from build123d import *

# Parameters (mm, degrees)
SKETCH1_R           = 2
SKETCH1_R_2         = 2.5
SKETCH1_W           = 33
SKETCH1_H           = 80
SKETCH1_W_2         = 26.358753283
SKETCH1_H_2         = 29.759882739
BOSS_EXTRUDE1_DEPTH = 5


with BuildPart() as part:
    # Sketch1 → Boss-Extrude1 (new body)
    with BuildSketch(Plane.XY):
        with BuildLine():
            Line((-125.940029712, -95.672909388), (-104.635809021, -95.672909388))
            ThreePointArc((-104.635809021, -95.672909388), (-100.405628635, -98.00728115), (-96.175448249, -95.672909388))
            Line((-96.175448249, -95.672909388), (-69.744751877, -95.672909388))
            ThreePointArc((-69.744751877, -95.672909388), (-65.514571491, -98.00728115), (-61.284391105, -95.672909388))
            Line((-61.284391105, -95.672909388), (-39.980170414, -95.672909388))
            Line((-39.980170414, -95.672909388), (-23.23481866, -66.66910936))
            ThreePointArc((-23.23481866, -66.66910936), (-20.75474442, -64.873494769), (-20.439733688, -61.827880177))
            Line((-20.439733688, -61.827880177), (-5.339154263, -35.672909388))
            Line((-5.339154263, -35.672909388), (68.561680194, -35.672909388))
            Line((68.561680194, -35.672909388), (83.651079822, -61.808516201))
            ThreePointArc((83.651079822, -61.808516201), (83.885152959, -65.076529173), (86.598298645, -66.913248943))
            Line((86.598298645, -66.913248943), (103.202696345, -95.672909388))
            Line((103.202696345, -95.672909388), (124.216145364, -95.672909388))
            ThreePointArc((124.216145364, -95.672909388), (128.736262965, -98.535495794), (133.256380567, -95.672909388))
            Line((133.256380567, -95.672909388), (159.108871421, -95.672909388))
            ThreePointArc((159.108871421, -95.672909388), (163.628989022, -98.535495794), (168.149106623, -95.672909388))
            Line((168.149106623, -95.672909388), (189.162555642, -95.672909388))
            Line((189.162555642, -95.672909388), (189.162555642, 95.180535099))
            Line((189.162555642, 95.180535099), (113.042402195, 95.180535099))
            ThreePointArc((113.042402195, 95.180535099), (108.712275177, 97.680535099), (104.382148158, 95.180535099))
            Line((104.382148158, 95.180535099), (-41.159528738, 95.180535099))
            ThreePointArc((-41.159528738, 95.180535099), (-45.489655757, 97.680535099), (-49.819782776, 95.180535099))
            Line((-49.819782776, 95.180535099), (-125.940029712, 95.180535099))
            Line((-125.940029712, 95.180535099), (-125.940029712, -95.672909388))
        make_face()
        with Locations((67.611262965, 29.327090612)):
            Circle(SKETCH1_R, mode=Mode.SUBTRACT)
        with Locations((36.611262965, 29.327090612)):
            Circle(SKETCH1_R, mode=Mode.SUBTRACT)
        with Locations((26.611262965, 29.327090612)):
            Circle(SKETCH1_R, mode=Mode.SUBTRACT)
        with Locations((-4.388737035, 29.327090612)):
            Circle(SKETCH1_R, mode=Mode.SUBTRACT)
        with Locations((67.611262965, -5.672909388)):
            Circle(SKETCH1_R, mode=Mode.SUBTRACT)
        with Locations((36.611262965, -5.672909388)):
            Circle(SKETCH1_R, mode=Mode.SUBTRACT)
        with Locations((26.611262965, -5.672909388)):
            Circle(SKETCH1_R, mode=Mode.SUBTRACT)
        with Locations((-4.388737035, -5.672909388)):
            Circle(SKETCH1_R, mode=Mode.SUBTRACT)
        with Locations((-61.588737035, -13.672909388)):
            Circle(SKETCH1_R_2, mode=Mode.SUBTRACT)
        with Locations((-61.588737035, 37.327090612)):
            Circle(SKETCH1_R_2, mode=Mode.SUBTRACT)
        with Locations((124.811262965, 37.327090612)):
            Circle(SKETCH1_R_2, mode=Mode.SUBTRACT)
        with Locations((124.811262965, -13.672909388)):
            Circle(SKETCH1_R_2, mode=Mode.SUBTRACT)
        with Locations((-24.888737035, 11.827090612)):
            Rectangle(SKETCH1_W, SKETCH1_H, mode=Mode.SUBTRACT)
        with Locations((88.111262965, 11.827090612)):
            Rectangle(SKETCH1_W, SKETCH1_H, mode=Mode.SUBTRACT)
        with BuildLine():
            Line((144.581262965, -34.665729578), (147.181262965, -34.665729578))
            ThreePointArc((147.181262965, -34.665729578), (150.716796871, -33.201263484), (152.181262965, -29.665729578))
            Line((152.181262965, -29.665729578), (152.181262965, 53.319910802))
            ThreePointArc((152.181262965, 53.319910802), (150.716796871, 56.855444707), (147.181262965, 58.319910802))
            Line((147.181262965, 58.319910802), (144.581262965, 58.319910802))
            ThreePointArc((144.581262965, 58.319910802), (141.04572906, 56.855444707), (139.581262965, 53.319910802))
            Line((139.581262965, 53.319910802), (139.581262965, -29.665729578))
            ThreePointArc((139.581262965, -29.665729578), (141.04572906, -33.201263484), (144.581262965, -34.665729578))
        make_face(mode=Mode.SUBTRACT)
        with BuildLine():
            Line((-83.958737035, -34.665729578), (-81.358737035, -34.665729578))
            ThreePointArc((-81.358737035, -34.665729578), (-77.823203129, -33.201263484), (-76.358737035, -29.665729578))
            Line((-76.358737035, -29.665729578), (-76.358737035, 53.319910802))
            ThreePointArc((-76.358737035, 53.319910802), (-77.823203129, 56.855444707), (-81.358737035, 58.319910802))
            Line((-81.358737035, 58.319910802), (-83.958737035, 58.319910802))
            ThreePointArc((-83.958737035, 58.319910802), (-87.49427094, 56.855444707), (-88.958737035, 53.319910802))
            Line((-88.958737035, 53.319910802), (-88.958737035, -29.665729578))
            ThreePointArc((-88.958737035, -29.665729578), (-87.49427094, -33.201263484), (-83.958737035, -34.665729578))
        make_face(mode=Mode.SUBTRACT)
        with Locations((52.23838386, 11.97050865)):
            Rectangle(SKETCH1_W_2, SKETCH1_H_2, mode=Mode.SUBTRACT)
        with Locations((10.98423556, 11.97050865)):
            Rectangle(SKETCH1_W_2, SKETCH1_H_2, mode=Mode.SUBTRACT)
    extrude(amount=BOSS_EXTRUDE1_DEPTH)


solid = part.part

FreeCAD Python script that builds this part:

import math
import FreeCAD as App
import Part
import Sketcher
from FreeCAD import Vector
Q = App.Units.Quantity

doc = App.newDocument("Part")
body = doc.addObject("PartDesign::Body", "Body")

# Sketch on XY plane
sketch1 = body.newObject("Sketcher::SketchObject", "Sketch")
sketch1.AttachmentSupport = (doc.getObject("XY_Plane"), [""])
sketch1.MapMode = "FlatFace"
sketch1.addGeometry([
    Part.LineSegment(Vector(-125.9, -95.7, 0), Vector(-104.6, -95.7, 0)),  # 0
    Part.ArcOfCircle(Part.Circle(Vector(-100.4, -93, 0), Vector(0, 0, 1), 5), math.radians(-148), math.radians(-32)),  # 1
    Part.LineSegment(Vector(-96.2, -95.7, 0), Vector(-69.7, -95.7, 0)),  # 2
    Part.ArcOfCircle(Part.Circle(Vector(-65.5, -93, 0), Vector(0, 0, 1), 5), math.radians(-148), math.radians(-32)),  # 3
    Part.LineSegment(Vector(-61.3, -95.7, 0), Vector(-40, -95.7, 0)),  # 4
    Part.LineSegment(Vector(-40, -95.7, 0), Vector(-23.2, -66.7, 0)),  # 5
    Part.ArcOfCircle(Part.Circle(Vector(-24, -63, 0), Vector(0, 0, 1), 3.8), math.radians(-78), math.radians(18)),  # 6
    Part.LineSegment(Vector(-20.4, -61.8, 0), Vector(-5.3, -35.7, 0)),  # 7
    Part.LineSegment(Vector(-5.3, -35.7, 0), Vector(68.6, -35.7, 0)),  # 8
    Part.LineSegment(Vector(68.6, -35.7, 0), Vector(83.7, -61.8, 0)),  # 9
    Part.ArcOfCircle(Part.Circle(Vector(87.1, -63.2, 0), Vector(0, 0, 1), 3.8), math.radians(158), math.radians(262)),  # 10
    Part.LineSegment(Vector(86.6, -66.9, 0), Vector(103.2, -95.7, 0)),  # 11
    Part.LineSegment(Vector(103.2, -95.7, 0), Vector(124.2, -95.7, 0)),  # 12
    Part.ArcOfCircle(Part.Circle(Vector(128.7, -93.5, 0), Vector(0, 0, 1), 5), math.radians(-155), math.radians(-25)),  # 13
    Part.LineSegment(Vector(133.3, -95.7, 0), Vector(159.1, -95.7, 0)),  # 14
    Part.ArcOfCircle(Part.Circle(Vector(163.6, -93.5, 0), Vector(0, 0, 1), 5), math.radians(-155), math.radians(-25)),  # 15
    Part.LineSegment(Vector(168.1, -95.7, 0), Vector(189.2, -95.7, 0)),  # 16
    Part.LineSegment(Vector(189.2, -95.7, 0), Vector(189.2, 95.2, 0)),  # 17
    Part.LineSegment(Vector(189.2, 95.2, 0), Vector(113, 95.2, 0)),  # 18
    Part.ArcOfCircle(Part.Circle(Vector(108.7, 92.7, 0), Vector(0, 0, 1), 5), math.radians(30), math.radians(150)),  # 19
    Part.LineSegment(Vector(104.4, 95.2, 0), Vector(-41.2, 95.2, 0)),  # 20
    Part.ArcOfCircle(Part.Circle(Vector(-45.5, 92.7, 0), Vector(0, 0, 1), 5), math.radians(30), math.radians(150)),  # 21
    Part.LineSegment(Vector(-49.8, 95.2, 0), Vector(-125.9, 95.2, 0)),  # 22
    Part.LineSegment(Vector(-125.9, 95.2, 0), Vector(-125.9, -95.7, 0)),  # 23
    Part.Circle(Vector(-61.6, -13.7, 0), Vector(0, 0, 1), 2.5),  # 24
    Part.Circle(Vector(-4.4, -5.7, 0), Vector(0, 0, 1), 2),  # 25
    Part.Circle(Vector(26.6, -5.7, 0), Vector(0, 0, 1), 2),  # 26
    Part.Circle(Vector(124.8, -13.7, 0), Vector(0, 0, 1), 2.5),  # 27
    Part.Circle(Vector(36.6, -5.7, 0), Vector(0, 0, 1), 2),  # 28
    Part.Circle(Vector(67.6, -5.7, 0), Vector(0, 0, 1), 2),  # 29
    Part.LineSegment(Vector(-81.4, -34.7, 0), Vector(-84, -34.7, 0)),  # 30
    Part.ArcOfCircle(Part.Circle(Vector(-84, -29.7, 0), Vector(0, 0, 1), 5), math.radians(-180), math.radians(-90)),  # 31
    Part.LineSegment(Vector(-89, -29.7, 0), Vector(-89, 53.3, 0)),  # 32
    Part.ArcOfCircle(Part.Circle(Vector(-84, 53.3, 0), Vector(0, 0, 1), 5), math.radians(90), math.radians(180)),  # 33
    Part.LineSegment(Vector(-84, 58.3, 0), Vector(-81.4, 58.3, 0)),  # 34
    Part.ArcOfCircle(Part.Circle(Vector(-81.4, 53.3, 0), Vector(0, 0, 1), 5), math.radians(0), math.radians(90)),  # 35
    Part.LineSegment(Vector(-76.4, 53.3, 0), Vector(-76.4, -29.7, 0)),  # 36
    Part.ArcOfCircle(Part.Circle(Vector(-81.4, -29.7, 0), Vector(0, 0, 1), 5), math.radians(-90), math.radians(0)),  # 37
    Part.LineSegment(Vector(-8.4, -28.2, 0), Vector(-41.4, -28.2, 0)),  # 38
    Part.LineSegment(Vector(-41.4, -28.2, 0), Vector(-41.4, 51.8, 0)),  # 39
    Part.LineSegment(Vector(-41.4, 51.8, 0), Vector(-8.4, 51.8, 0)),  # 40
    Part.LineSegment(Vector(-8.4, 51.8, 0), Vector(-8.4, -28.2, 0)),  # 41
    Part.LineSegment(Vector(24.2, -2.9, 0), Vector(-2.2, -2.9, 0)),  # 42
    Part.LineSegment(Vector(-2.2, -2.9, 0), Vector(-2.2, 26.9, 0)),  # 43
    Part.LineSegment(Vector(-2.2, 26.9, 0), Vector(24.2, 26.9, 0)),  # 44
    Part.LineSegment(Vector(24.2, 26.9, 0), Vector(24.2, -2.9, 0)),  # 45
    Part.Circle(Vector(-4.4, 29.3, 0), Vector(0, 0, 1), 2),  # 46
    Part.Circle(Vector(26.6, 29.3, 0), Vector(0, 0, 1), 2),  # 47
    Part.Circle(Vector(-61.6, 37.3, 0), Vector(0, 0, 1), 2.5),  # 48
    Part.LineSegment(Vector(65.4, -2.9, 0), Vector(39.1, -2.9, 0)),  # 49
    Part.LineSegment(Vector(39.1, -2.9, 0), Vector(39.1, 26.9, 0)),  # 50
    Part.LineSegment(Vector(39.1, 26.9, 0), Vector(65.4, 26.9, 0)),  # 51
    Part.LineSegment(Vector(65.4, 26.9, 0), Vector(65.4, -2.9, 0)),  # 52
    Part.LineSegment(Vector(104.6, -28.2, 0), Vector(71.6, -28.2, 0)),  # 53
    Part.LineSegment(Vector(71.6, -28.2, 0), Vector(71.6, 51.8, 0)),  # 54
    Part.LineSegment(Vector(71.6, 51.8, 0), Vector(104.6, 51.8, 0)),  # 55
    Part.LineSegment(Vector(104.6, 51.8, 0), Vector(104.6, -28.2, 0)),  # 56
    Part.Circle(Vector(36.6, 29.3, 0), Vector(0, 0, 1), 2),  # 57
    Part.Circle(Vector(67.6, 29.3, 0), Vector(0, 0, 1), 2),  # 58
    Part.LineSegment(Vector(147.2, -34.7, 0), Vector(144.6, -34.7, 0)),  # 59
    Part.ArcOfCircle(Part.Circle(Vector(144.6, -29.7, 0), Vector(0, 0, 1), 5), math.radians(-180), math.radians(-90)),  # 60
    Part.LineSegment(Vector(139.6, -29.7, 0), Vector(139.6, 53.3, 0)),  # 61
    Part.ArcOfCircle(Part.Circle(Vector(144.6, 53.3, 0), Vector(0, 0, 1), 5), math.radians(90), math.radians(180)),  # 62
    Part.LineSegment(Vector(144.6, 58.3, 0), Vector(147.2, 58.3, 0)),  # 63
    Part.ArcOfCircle(Part.Circle(Vector(147.2, 53.3, 0), Vector(0, 0, 1), 5), math.radians(0), math.radians(90)),  # 64
    Part.LineSegment(Vector(152.2, 53.3, 0), Vector(152.2, -29.7, 0)),  # 65
    Part.ArcOfCircle(Part.Circle(Vector(147.2, -29.7, 0), Vector(0, 0, 1), 5), math.radians(-90), math.radians(0)),  # 66
    Part.Circle(Vector(124.8, 37.3, 0), Vector(0, 0, 1), 2.5),  # 67
], False)
sketch1.addConstraint([
    Sketcher.Constraint("Coincident", 0, 2, 1, 1),
    Sketcher.Constraint("Coincident", 1, 2, 2, 1),
    Sketcher.Constraint("Coincident", 2, 2, 3, 1),
    Sketcher.Constraint("Coincident", 3, 2, 4, 1),
    Sketcher.Constraint("Coincident", 4, 2, 5, 1),
    Sketcher.Constraint("Coincident", 5, 2, 6, 1),
    Sketcher.Constraint("Coincident", 6, 2, 7, 1),
    Sketcher.Constraint("Coincident", 7, 2, 8, 1),
    Sketcher.Constraint("Coincident", 8, 2, 9, 1),
    Sketcher.Constraint("Coincident", 9, 2, 10, 1),
    Sketcher.Constraint("Coincident", 10, 2, 11, 1),
    Sketcher.Constraint("Coincident", 11, 2, 12, 1),
    Sketcher.Constraint("Coincident", 12, 2, 13, 1),
    Sketcher.Constraint("Coincident", 13, 2, 14, 1),
    Sketcher.Constraint("Coincident", 14, 2, 15, 1),
    Sketcher.Constraint("Coincident", 15, 2, 16, 1),
    Sketcher.Constraint("Coincident", 16, 2, 17, 1),
    Sketcher.Constraint("Coincident", 17, 2, 18, 1),
    Sketcher.Constraint("Coincident", 18, 2, 19, 1),
    Sketcher.Constraint("Coincident", 19, 2, 20, 1),
    Sketcher.Constraint("Coincident", 20, 2, 21, 1),
    Sketcher.Constraint("Coincident", 21, 2, 22, 1),
    Sketcher.Constraint("Coincident", 22, 2, 23, 1),
    Sketcher.Constraint("Coincident", 23, 2, 0, 1),
    Sketcher.Constraint("Tangent", 30, 2, 31, 2),
    Sketcher.Constraint("Tangent", 31, 1, 32, 1),
    Sketcher.Constraint("Tangent", 32, 2, 33, 2),
    Sketcher.Constraint("Tangent", 33, 1, 34, 1),
    Sketcher.Constraint("Tangent", 34, 2, 35, 2),
    Sketcher.Constraint("Tangent", 35, 1, 36, 1),
    Sketcher.Constraint("Tangent", 36, 2, 37, 2),
    Sketcher.Constraint("Tangent", 37, 1, 30, 1),
    Sketcher.Constraint("Coincident", 38, 2, 39, 1),
    Sketcher.Constraint("Coincident", 39, 2, 40, 1),
    Sketcher.Constraint("Coincident", 40, 2, 41, 1),
    Sketcher.Constraint("Coincident", 41, 2, 38, 1),
    Sketcher.Constraint("Coincident", 42, 2, 43, 1),
    Sketcher.Constraint("Coincident", 43, 2, 44, 1),
    Sketcher.Constraint("Coincident", 44, 2, 45, 1),
    Sketcher.Constraint("Coincident", 45, 2, 42, 1),
    Sketcher.Constraint("Coincident", 49, 2, 50, 1),
    Sketcher.Constraint("Coincident", 50, 2, 51, 1),
    Sketcher.Constraint("Coincident", 51, 2, 52, 1),
    Sketcher.Constraint("Coincident", 52, 2, 49, 1),
    Sketcher.Constraint("Coincident", 53, 2, 54, 1),
    Sketcher.Constraint("Coincident", 54, 2, 55, 1),
    Sketcher.Constraint("Coincident", 55, 2, 56, 1),
    Sketcher.Constraint("Coincident", 56, 2, 53, 1),
    Sketcher.Constraint("Tangent", 59, 2, 60, 2),
    Sketcher.Constraint("Tangent", 60, 1, 61, 1),
    Sketcher.Constraint("Tangent", 61, 2, 62, 2),
    Sketcher.Constraint("Tangent", 62, 1, 63, 1),
    Sketcher.Constraint("Tangent", 63, 2, 64, 2),
    Sketcher.Constraint("Tangent", 64, 1, 65, 1),
    Sketcher.Constraint("Tangent", 65, 2, 66, 2),
    Sketcher.Constraint("Tangent", 66, 1, 59, 1),
    Sketcher.Constraint("Horizontal", 0),
    Sketcher.Constraint("Horizontal", 2),
    Sketcher.Constraint("Horizontal", 4),
    Sketcher.Constraint("Horizontal", 8),
    Sketcher.Constraint("Horizontal", 12),
    Sketcher.Constraint("Horizontal", 14),
    Sketcher.Constraint("Horizontal", 16),
    Sketcher.Constraint("Vertical", 17),
    Sketcher.Constraint("Horizontal", 18),
    Sketcher.Constraint("Horizontal", 20),
    Sketcher.Constraint("Horizontal", 22),
    Sketcher.Constraint("Vertical", 23),
    Sketcher.Constraint("Horizontal", 30),
    Sketcher.Constraint("Vertical", 32),
    Sketcher.Constraint("Horizontal", 34),
    Sketcher.Constraint("Vertical", 36),
    Sketcher.Constraint("Horizontal", 38),
    Sketcher.Constraint("Vertical", 39),
    Sketcher.Constraint("Horizontal", 40),
    Sketcher.Constraint("Vertical", 41),
    Sketcher.Constraint("Horizontal", 42),
    Sketcher.Constraint("Vertical", 43),
    Sketcher.Constraint("Horizontal", 44),
    Sketcher.Constraint("Vertical", 45),
    Sketcher.Constraint("Horizontal", 49),
    Sketcher.Constraint("Vertical", 50),
    Sketcher.Constraint("Horizontal", 51),
    Sketcher.Constraint("Vertical", 52),
    Sketcher.Constraint("Horizontal", 53),
    Sketcher.Constraint("Vertical", 54),
    Sketcher.Constraint("Horizontal", 55),
    Sketcher.Constraint("Vertical", 56),
    Sketcher.Constraint("Horizontal", 59),
    Sketcher.Constraint("Vertical", 61),
    Sketcher.Constraint("Horizontal", 63),
    Sketcher.Constraint("Vertical", 65),
    Sketcher.Constraint("Equal", 1, 3),
    Sketcher.Constraint("Equal", 6, 10),
    Sketcher.Constraint("Equal", 3, 13),
    Sketcher.Constraint("Equal", 13, 15),
    Sketcher.Constraint("Equal", 15, 19),
    Sketcher.Constraint("Equal", 19, 21),
    Sketcher.Constraint("Equal", 25, 26),
    Sketcher.Constraint("Equal", 24, 27),
    Sketcher.Constraint("Equal", 26, 28),
    Sketcher.Constraint("Equal", 28, 29),
    Sketcher.Constraint("Equal", 21, 31),
    Sketcher.Constraint("Equal", 31, 33),
    Sketcher.Constraint("Equal", 33, 35),
    Sketcher.Constraint("Equal", 35, 37),
    Sketcher.Constraint("Equal", 29, 46),
    Sketcher.Constraint("Equal", 46, 47),
    Sketcher.Constraint("Equal", 27, 48),
    Sketcher.Constraint("Equal", 47, 57),
    Sketcher.Constraint("Equal", 57, 58),
    Sketcher.Constraint("Equal", 37, 60),
    Sketcher.Constraint("Equal", 60, 62),
    Sketcher.Constraint("Equal", 62, 64),
    Sketcher.Constraint("Equal", 64, 66),
    Sketcher.Constraint("Equal", 48, 67),
    Sketcher.Constraint("Parallel", 5, 7),
    Sketcher.Constraint("Parallel", 9, 11),
    Sketcher.Constraint("Horizontal", 1, 3, 3, 3),
    Sketcher.Constraint("Horizontal", 13, 3, 15, 3),
    Sketcher.Constraint("Horizontal", 19, 3, 21, 3),
    Sketcher.Constraint("Horizontal", 25, 3, 26, 3),
    Sketcher.Constraint("Horizontal", 24, 3, 27, 3),
    Sketcher.Constraint("Horizontal", 26, 3, 28, 3),
    Sketcher.Constraint("Horizontal", 28, 3, 29, 3),
    Sketcher.Constraint("Horizontal", 46, 3, 47, 3),
    Sketcher.Constraint("Horizontal", 47, 3, 57, 3),
    Sketcher.Constraint("Horizontal", 57, 3, 58, 3),
    Sketcher.Constraint("Horizontal", 37, 3, 60, 3),
    Sketcher.Constraint("Horizontal", 35, 3, 62, 3),
    Sketcher.Constraint("Horizontal", 48, 3, 67, 3),
    Sketcher.Constraint("Horizontal", 0, 2, 1, 2),
    Sketcher.Constraint("Horizontal", 2, 2, 3, 2),
    Sketcher.Constraint("Horizontal", 4, 2, 11, 2),
    Sketcher.Constraint("Horizontal", 12, 2, 13, 2),
    Sketcher.Constraint("Horizontal", 14, 2, 15, 2),
    Sketcher.Constraint("Horizontal", 18, 2, 19, 2),
    Sketcher.Constraint("Horizontal", 20, 2, 21, 2),
    Sketcher.Constraint("Horizontal", 45, 2, 49, 2),
    Sketcher.Constraint("Horizontal", 44, 2, 50, 2),
    Sketcher.Constraint("Horizontal", 41, 2, 53, 2),
    Sketcher.Constraint("Horizontal", 40, 2, 54, 2),
    Sketcher.Constraint("Vertical", 25, 3, 46, 3),
    Sketcher.Constraint("Vertical", 26, 3, 47, 3),
    Sketcher.Constraint("Vertical", 24, 3, 48, 3),
    Sketcher.Constraint("Vertical", 28, 3, 57, 3),
    Sketcher.Constraint("Vertical", 29, 3, 58, 3),
    Sketcher.Constraint("Vertical", 27, 3, 67, 3),
    Sketcher.Constraint("Equal", 0, 4),
    Sketcher.Constraint("Equal", 12, 16),
    Sketcher.Constraint("Equal", 44, 49),
    Sketcher.Constraint("Equal", 40, 53),
    Sketcher.Constraint("Equal", 34, 59),
    Sketcher.Constraint("Diameter", 24, 5.0),
    Sketcher.Constraint("Diameter", 25, 4.0),
    Sketcher.Constraint("Radius", 1, 5.0),
    Sketcher.Constraint("DistanceX", 38, 2, 38, 1, 33.0),
    Sketcher.Constraint("DistanceY", 39, 1, 39, 2, 80.0),
    Sketcher.Constraint("Angle", 5, Q("60 deg")),
    Sketcher.Constraint("Angle", 9, Q("-60 deg")),
    Sketcher.Constraint("Radius", 6, 3.75),
    Sketcher.Constraint("DistanceX", 30, 2, 30, 1, 2.6),
    Sketcher.Constraint("Distance", 9, 30.178799),
    Sketcher.Constraint("DistanceX", 0, 1, 0, 2, 21.304221),
    Sketcher.Constraint("DistanceX", 12, 1, 12, 2, 21.013449),
    Sketcher.Constraint("DistanceX", 14, 1, 14, 2, 25.852491),
    Sketcher.Constraint("DistanceY", 32, 1, 32, 2, 82.98564),
    Sketcher.Constraint("DistanceX", -1, 1, 10, 2, 86.598299),
    Sketcher.Constraint("Distance", 7, 30.201159),
    Sketcher.Constraint("DistanceX", 2, 1, 2, 2, 26.430696),
    Sketcher.Constraint("DistanceX", 8, 1, 8, 2, 73.900834),
    Sketcher.Constraint("DistanceX", 18, 2, 18, 1, 76.120153),
    Sketcher.Constraint("DistanceX", 20, 2, 20, 1, 145.541677),
    Sketcher.Constraint("DistanceX", 22, 2, 22, 1, 76.120247),
    Sketcher.Constraint("DistanceX", 42, 2, 42, 1, 26.358753),
    Sketcher.Constraint("DistanceY", 17, 1, 17, 2, 190.853444),
    Sketcher.Constraint("DistanceY", 43, 1, 43, 2, 29.759883),
    Sketcher.Constraint("DistanceX", 1, 3, -1, 1, 100.405629),
    Sketcher.Constraint("DistanceY", 1, 3, -1, 1, 93.007281),
    Sketcher.Constraint("DistanceX", 3, 3, -1, 1, 65.514571),
    Sketcher.Constraint("DistanceX", 6, 3, -1, 1, 24.00234),
    Sketcher.Constraint("DistanceX", -1, 1, 10, 3, 87.132748),
    Sketcher.Constraint("DistanceY", 10, 3, -1, 1, 63.201529),
    Sketcher.Constraint("DistanceX", -1, 1, 15, 3, 163.628989),
    Sketcher.Constraint("DistanceY", 24, 3, -1, 1, 13.672909),
    Sketcher.Constraint("DistanceY", 25, 3, -1, 1, 5.672909),
    Sketcher.Constraint("DistanceY", 31, 3, -1, 1, 29.66573),
    Sketcher.Constraint("DistanceY", -1, 1, 46, 3, 29.327091),
    Sketcher.Constraint("DistanceY", -1, 1, 48, 3, 37.327091),
    Sketcher.Constraint("DistanceX", 5, 2, -1, 1, 23.234819),
    Sketcher.Constraint("DistanceY", 38, 2, -1, 1, 28.172909),
    Sketcher.Constraint("DistanceX", 42, 2, -1, 1, 2.195141),
    Sketcher.Constraint("DistanceY", -1, 1, 43, 2, 26.85045),
    Sketcher.Constraint("DistanceX", -1, 1, 51, 2, 65.417761),
    Sketcher.Constraint("DistanceX", 24, 3, -1, 1, 61.588737),
    Sketcher.Constraint("DistanceX", 25, 3, -1, 1, 4.388737),
    Sketcher.Constraint("DistanceX", -1, 1, 26, 3, 26.611263),
    Sketcher.Constraint("DistanceX", -1, 1, 27, 3, 124.811263),
    Sketcher.Constraint("DistanceX", -1, 1, 28, 3, 36.611263),
    Sketcher.Constraint("DistanceX", -1, 1, 29, 3, 67.611263),
    Sketcher.Constraint("DistanceX", 31, 3, -1, 1, 83.958737),
    Sketcher.Constraint("DistanceX", -1, 1, 60, 3, 144.581263),
    Sketcher.Constraint("DistanceX", 38, 2, -1, 1, 41.388737),
    Sketcher.Constraint("DistanceX", -1, 1, 53, 2, 71.611263),
])
pad1 = body.newObject("PartDesign::Pad", "Pad")
pad1.Profile = sketch1
pad1.Length = 5

doc.recompute()
